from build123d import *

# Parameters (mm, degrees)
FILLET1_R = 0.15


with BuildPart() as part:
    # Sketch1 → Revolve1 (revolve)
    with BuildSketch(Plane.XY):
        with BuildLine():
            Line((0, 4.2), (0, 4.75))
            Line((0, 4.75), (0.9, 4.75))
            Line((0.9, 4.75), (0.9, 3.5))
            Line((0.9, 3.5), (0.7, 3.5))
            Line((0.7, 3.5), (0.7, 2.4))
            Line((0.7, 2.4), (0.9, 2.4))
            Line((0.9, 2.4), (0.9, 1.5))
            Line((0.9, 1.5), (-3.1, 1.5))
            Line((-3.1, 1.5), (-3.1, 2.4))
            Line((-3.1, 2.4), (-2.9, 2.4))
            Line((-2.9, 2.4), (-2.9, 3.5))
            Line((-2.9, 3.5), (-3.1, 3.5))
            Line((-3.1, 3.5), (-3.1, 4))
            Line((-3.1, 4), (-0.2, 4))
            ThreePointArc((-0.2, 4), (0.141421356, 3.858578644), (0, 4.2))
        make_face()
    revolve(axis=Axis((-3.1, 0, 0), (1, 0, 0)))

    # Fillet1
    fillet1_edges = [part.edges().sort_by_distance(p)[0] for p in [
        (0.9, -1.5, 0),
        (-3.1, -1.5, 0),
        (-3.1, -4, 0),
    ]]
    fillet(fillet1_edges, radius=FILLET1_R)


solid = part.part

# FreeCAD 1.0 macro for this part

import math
import FreeCAD as App
import Part
import Sketcher
Q = App.Units.Quantity


def edges_at(feature, points):
    """Names of the edges that pass closest to the given points."""
    edges = feature.Shape.Edges
    near = lambda p: min(range(len(edges)), key=lambda i: edges[i].distToShape(Part.Vertex(*p))[0])
    return sorted({f"Edge{near(p) + 1}" for p in points})

doc = App.newDocument("Part")
body = doc.addObject("PartDesign::Body", "Body")

# Sketch on XY plane
sketch1 = body.newObject("Sketcher::SketchObject", "Sketch")
sketch1.AttachmentSupport = (doc.getObject("XY_Plane"), [""])
sketch1.MapMode = "FlatFace"
sketch1.addGeometry([
    Part.LineSegment(App.Vector(0, 4.75, 0), App.Vector(0, 4.2, 0)),  # 0
    Part.ArcOfCircle(Part.Circle(App.Vector(0, 4, 0), App.Vector(0, 0, 1), 0.2), math.radians(180), math.radians(450)),  # 1
    Part.LineSegment(App.Vector(-0.2, 4, 0), App.Vector(-3.1, 4, 0)),  # 2
    Part.LineSegment(App.Vector(-3.1, 4, 0), App.Vector(-3.1, 3.5, 0)),  # 3
    Part.LineSegment(App.Vector(-3.1, 3.5, 0), App.Vector(-2.9, 3.5, 0)),  # 4
    Part.LineSegment(App.Vector(-2.9, 3.5, 0), App.Vector(-2.9, 2.4, 0)),  # 5
    Part.LineSegment(App.Vector(-2.9, 2.4, 0), App.Vector(-3.1, 2.4, 0)),  # 6
    Part.LineSegment(App.Vector(-3.1, 2.4, 0), App.Vector(-3.1, 1.5, 0)),  # 7
    Part.LineSegment(App.Vector(-3.1, 1.5, 0), App.Vector(0.9, 1.5, 0)),  # 8
    Part.LineSegment(App.Vector(0.9, 1.5, 0), App.Vector(0.9, 2.4, 0)),  # 9
    Part.LineSegment(App.Vector(0.9, 2.4, 0), App.Vector(0.7, 2.4, 0)),  # 10
    Part.LineSegment(App.Vector(0.7, 2.4, 0), App.Vector(0.7, 3.5, 0)),  # 11
    Part.LineSegment(App.Vector(0.7, 3.5, 0), App.Vector(0.9, 3.5, 0)),  # 12
    Part.LineSegment(App.Vector(0.9, 3.5, 0), App.Vector(0.9, 4.75, 0)),  # 13
    Part.LineSegment(App.Vector(0.9, 4.75, 0), App.Vector(0, 4.75, 0)),  # 14
], False)
sketch1.addConstraint([
    Sketcher.Constraint("Coincident", 0, 2, 1, 2),
    Sketcher.Constraint("Coincident", 1, 1, 2, 1),
    Sketcher.Constraint("Coincident", 2, 2, 3, 1),
    Sketcher.Constraint("Coincident", 3, 2, 4, 1),
    Sketcher.Constraint("Coincident", 4, 2, 5, 1),
    Sketcher.Constraint("Coincident", 5, 2, 6, 1),
    Sketcher.Constraint("Coincident", 6, 2, 7, 1),
    Sketcher.Constraint("Coincident", 7, 2, 8, 1),
    Sketcher.Constraint("Coincident", 8, 2, 9, 1),
    Sketcher.Constraint("Coincident", 9, 2, 10, 1),
    Sketcher.Constraint("Coincident", 10, 2, 11, 1),
    Sketcher.Constraint("Coincident", 11, 2, 12, 1),
    Sketcher.Constraint("Coincident", 12, 2, 13, 1),
    Sketcher.Constraint("Coincident", 13, 2, 14, 1),
    Sketcher.Constraint("Coincident", 14, 2, 0, 1),
    Sketcher.Constraint("Vertical", 0),
    Sketcher.Constraint("Horizontal", 2),
    Sketcher.Constraint("Vertical", 3),
    Sketcher.Constraint("Horizontal", 4),
    Sketcher.Constraint("Vertical", 5),
    Sketcher.Constraint("Horizontal", 6),
    Sketcher.Constraint("Vertical", 7),
    Sketcher.Constraint("Horizontal", 8),
    Sketcher.Constraint("Vertical", 9),
    Sketcher.Constraint("Horizontal", 10),
    Sketcher.Constraint("Vertical", 11),
    Sketcher.Constraint("Horizontal", 12),
    Sketcher.Constraint("Vertical", 13),
    Sketcher.Constraint("Horizontal", 14),
    Sketcher.Constraint("PointOnObject", 1, 3, -2),
    Sketcher.Constraint("PointOnObject", 0, 2, -2),
    Sketcher.Constraint("Horizontal", 6, 2, 9, 2),
    Sketcher.Constraint("Horizontal", 4, 2, 11, 2),
    Sketcher.Constraint("Vertical", 3, 2, 6, 2),
    Sketcher.Constraint("Vertical", 9, 2, 12, 2),
    Sketcher.Constraint("Equal", 6, 10),
    Sketcher.Constraint("Equal", 14, 7),
    Sketcher.Constraint("Radius", 1, Q("0.2 mm")),
    Sketcher.Constraint("DistanceX", 8, 1, 8, 2, Q("4 mm")),
    Sketcher.Constraint("DistanceX", 2, 2, 2, 1, Q("2.9 mm")),
    Sketcher.Constraint("DistanceX", 4, 1, 4, 2, Q("0.2 mm")),
    Sketcher.Constraint("DistanceY", 3, 2, 3, 1, Q("0.5 mm")),
    Sketcher.Constraint("DistanceY", 5, 2, 5, 1, Q("1.1 mm")),
    Sketcher.Constraint("DistanceY", -1, 1, 1, 3, Q("4 mm")),
    Sketcher.Constraint("DistanceY", -1, 1, 1, 1, Q("4 mm")),
    Sketcher.Constraint("DistanceY", 0, 2, 0, 1, Q("0.55 mm")),
])
revolution = body.newObject("PartDesign::Revolution", "Revolution")
revolution.Profile = sketch1
revolution.ReferenceAxis = (sketch1, ["H_Axis"])
revolution.Angle = 360
doc.recompute()

fillet = body.newObject("PartDesign::Fillet", "Fillet")
fillet.Base = (revolution, edges_at(revolution, [(0.9, -1.5, 0), (-3.1, -1.5, 0), (-3.1, -4, 0)]))
fillet.Radius = 0.15

doc.recompute()
